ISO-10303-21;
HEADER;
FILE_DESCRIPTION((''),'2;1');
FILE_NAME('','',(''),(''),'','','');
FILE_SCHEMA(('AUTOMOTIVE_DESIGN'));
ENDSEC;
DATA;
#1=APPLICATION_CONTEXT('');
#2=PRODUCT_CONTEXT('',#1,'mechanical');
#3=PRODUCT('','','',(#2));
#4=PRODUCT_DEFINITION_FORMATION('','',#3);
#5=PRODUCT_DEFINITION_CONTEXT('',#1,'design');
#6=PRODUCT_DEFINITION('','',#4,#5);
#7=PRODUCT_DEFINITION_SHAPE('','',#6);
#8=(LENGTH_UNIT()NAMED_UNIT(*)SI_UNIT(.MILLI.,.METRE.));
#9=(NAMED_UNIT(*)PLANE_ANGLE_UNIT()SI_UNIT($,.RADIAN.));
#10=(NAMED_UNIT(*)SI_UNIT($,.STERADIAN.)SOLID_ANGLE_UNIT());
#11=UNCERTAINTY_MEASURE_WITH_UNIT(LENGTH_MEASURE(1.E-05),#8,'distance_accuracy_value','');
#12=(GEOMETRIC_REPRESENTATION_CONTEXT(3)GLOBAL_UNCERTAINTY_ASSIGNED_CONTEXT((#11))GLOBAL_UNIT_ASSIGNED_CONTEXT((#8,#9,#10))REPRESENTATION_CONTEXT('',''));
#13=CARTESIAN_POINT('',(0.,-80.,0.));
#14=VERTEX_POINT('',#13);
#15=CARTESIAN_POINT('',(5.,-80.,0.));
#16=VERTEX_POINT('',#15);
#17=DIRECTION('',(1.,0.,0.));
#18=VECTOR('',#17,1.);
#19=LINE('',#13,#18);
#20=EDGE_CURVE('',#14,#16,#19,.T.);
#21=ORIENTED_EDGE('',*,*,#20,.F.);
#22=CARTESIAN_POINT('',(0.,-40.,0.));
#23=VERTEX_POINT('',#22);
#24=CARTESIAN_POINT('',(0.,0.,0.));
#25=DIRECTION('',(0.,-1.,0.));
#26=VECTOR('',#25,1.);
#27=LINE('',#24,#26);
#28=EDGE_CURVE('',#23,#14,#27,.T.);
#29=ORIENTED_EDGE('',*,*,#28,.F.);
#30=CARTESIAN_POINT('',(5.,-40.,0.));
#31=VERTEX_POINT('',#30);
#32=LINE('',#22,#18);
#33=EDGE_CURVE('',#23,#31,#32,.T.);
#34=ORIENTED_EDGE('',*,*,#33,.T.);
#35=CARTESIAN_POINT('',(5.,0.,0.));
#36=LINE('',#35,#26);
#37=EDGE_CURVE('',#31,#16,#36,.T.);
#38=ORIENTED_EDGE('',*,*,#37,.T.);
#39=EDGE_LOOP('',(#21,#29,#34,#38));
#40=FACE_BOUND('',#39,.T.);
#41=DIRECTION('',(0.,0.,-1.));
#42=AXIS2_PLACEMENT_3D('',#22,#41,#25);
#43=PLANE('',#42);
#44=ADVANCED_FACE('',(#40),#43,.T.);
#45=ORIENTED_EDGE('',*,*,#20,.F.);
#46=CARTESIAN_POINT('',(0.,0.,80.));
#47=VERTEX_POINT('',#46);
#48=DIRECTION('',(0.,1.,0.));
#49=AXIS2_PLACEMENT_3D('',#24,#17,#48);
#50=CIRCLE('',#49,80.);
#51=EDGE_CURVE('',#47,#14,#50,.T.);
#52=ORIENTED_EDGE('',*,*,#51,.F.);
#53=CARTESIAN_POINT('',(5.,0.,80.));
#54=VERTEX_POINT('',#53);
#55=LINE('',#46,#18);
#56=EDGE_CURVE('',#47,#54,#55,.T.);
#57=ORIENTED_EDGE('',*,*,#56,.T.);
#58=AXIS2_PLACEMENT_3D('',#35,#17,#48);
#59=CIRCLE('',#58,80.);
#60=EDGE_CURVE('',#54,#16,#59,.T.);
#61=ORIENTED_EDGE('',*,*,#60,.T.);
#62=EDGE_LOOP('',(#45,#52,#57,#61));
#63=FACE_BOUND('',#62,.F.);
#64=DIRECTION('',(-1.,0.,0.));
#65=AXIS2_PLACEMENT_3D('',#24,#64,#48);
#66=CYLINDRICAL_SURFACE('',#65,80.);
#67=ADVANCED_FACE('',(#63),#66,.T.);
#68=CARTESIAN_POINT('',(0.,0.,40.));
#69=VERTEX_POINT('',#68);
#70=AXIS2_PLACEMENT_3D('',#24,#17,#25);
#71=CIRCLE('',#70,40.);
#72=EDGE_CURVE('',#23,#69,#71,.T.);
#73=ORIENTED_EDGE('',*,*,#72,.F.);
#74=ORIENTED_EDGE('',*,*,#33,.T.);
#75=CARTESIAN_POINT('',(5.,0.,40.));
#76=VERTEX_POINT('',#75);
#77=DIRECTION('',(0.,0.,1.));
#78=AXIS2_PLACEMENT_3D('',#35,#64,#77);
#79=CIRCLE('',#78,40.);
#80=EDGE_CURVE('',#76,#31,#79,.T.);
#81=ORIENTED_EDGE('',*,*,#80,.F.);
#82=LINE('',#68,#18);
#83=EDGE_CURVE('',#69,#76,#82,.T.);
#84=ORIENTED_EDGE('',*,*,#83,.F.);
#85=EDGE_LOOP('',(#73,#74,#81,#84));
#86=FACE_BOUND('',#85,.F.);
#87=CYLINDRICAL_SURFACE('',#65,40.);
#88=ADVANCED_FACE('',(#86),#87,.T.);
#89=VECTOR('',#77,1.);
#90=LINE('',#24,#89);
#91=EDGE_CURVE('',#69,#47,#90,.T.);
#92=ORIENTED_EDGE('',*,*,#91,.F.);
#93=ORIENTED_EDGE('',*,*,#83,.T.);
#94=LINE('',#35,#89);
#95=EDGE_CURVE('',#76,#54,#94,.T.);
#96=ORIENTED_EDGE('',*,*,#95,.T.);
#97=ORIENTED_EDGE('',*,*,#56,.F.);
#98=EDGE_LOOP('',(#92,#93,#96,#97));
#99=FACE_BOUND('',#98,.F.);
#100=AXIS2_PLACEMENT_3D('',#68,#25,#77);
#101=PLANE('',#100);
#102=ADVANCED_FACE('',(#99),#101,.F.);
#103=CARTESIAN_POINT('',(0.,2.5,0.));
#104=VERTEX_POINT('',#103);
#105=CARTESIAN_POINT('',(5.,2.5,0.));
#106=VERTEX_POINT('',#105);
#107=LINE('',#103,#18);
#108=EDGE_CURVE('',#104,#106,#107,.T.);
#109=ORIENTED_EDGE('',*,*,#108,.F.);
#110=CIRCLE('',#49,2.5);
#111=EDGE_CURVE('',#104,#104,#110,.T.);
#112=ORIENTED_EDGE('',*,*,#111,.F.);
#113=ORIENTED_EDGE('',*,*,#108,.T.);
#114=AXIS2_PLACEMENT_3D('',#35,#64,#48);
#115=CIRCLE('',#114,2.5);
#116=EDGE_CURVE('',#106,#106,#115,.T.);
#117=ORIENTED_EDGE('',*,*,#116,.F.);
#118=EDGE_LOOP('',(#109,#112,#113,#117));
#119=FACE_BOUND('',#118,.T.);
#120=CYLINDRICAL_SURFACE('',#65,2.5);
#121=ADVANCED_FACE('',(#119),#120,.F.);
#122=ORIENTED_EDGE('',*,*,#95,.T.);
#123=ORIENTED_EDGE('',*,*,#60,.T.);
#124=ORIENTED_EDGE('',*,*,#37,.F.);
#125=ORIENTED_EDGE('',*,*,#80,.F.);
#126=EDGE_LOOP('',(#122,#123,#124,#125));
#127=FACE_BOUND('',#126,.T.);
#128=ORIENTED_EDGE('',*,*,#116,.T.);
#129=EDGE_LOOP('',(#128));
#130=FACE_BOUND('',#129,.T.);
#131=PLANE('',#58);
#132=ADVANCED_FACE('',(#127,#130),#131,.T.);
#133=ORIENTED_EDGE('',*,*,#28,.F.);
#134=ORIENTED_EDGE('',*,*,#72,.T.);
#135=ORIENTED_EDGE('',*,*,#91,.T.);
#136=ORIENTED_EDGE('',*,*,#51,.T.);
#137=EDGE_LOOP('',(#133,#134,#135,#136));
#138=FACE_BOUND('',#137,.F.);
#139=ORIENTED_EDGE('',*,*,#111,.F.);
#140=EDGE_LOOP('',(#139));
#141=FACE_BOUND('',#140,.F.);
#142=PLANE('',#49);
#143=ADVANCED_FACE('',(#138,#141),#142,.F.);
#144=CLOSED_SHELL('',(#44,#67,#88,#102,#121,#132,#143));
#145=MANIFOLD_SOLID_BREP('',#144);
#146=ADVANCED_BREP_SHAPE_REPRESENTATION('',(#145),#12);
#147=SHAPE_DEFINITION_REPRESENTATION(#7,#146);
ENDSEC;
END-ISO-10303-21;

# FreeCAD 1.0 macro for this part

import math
import FreeCAD as App
import Part
import Sketcher

V = App.Vector
Q = App.Units.Quantity

doc = App.newDocument("Part")
body = doc.addObject("PartDesign::Body", "Body")

# Sketch on YZ plane
sketch1 = body.newObject("Sketcher::SketchObject", "Sketch")
sketch1.AttachmentSupport = (doc.getObject("YZ_Plane"), [""])
sketch1.MapMode = "FlatFace"
sketch1.addGeometry(Part.LineSegment(V(0, 40, 0), V(0, 80, 0)), False)
sketch1.addGeometry(Part.ArcOfCircle(Part.Circle(V(0, 0, 0), V(0, 0, 1), 80), math.radians(90), math.radians(180)), False)
sketch1.addGeometry(Part.LineSegment(V(-80, 0, 0), V(-40, 0, 0)), False)
sketch1.addGeometry(Part.ArcOfCircle(Part.Circle(V(0, 0, 0), V(0, 0, 1), 40), math.radians(180), math.radians(450)), False)
sketch1.addGeometry(Part.Circle(V(0, 0, 0), V(0, 0, 1), 2.5), False)
sketch1.addConstraint(Sketcher.Constraint("Coincident", 0, 2, 1, 1))
sketch1.addConstraint(Sketcher.Constraint("Coincident", 1, 2, 2, 1))
sketch1.addConstraint(Sketcher.Constraint("Coincident", 2, 2, 3, 1))
sketch1.addConstraint(Sketcher.Constraint("Coincident", 3, 2, 0, 1))
sketch1.addConstraint(Sketcher.Constraint("Vertical", 0))
sketch1.addConstraint(Sketcher.Constraint("Horizontal", 2))
sketch1.addConstraint(Sketcher.Constraint("Coincident", 1, 3, -1, 1))
sketch1.addConstraint(Sketcher.Constraint("Coincident", 3, 3, -1, 1))
sketch1.addConstraint(Sketcher.Constraint("Coincident", 4, 3, -1, 1))
sketch1.addConstraint(Sketcher.Constraint("PointOnObject", 0, 2, -2))
sketch1.addConstraint(Sketcher.Constraint("PointOnObject", 1, 2, -1))
sketch1.addConstraint(Sketcher.Constraint("Diameter", 4, Q("5 mm")))
sketch1.addConstraint(Sketcher.Constraint("Radius", 1, Q("80 mm")))
sketch1.addConstraint(Sketcher.Constraint("Radius", 3, Q("40 mm")))
pad1 = body.newObject("PartDesign::Pad", "Pad")
pad1.Profile = sketch1
pad1.Length = 5

doc.recompute()
